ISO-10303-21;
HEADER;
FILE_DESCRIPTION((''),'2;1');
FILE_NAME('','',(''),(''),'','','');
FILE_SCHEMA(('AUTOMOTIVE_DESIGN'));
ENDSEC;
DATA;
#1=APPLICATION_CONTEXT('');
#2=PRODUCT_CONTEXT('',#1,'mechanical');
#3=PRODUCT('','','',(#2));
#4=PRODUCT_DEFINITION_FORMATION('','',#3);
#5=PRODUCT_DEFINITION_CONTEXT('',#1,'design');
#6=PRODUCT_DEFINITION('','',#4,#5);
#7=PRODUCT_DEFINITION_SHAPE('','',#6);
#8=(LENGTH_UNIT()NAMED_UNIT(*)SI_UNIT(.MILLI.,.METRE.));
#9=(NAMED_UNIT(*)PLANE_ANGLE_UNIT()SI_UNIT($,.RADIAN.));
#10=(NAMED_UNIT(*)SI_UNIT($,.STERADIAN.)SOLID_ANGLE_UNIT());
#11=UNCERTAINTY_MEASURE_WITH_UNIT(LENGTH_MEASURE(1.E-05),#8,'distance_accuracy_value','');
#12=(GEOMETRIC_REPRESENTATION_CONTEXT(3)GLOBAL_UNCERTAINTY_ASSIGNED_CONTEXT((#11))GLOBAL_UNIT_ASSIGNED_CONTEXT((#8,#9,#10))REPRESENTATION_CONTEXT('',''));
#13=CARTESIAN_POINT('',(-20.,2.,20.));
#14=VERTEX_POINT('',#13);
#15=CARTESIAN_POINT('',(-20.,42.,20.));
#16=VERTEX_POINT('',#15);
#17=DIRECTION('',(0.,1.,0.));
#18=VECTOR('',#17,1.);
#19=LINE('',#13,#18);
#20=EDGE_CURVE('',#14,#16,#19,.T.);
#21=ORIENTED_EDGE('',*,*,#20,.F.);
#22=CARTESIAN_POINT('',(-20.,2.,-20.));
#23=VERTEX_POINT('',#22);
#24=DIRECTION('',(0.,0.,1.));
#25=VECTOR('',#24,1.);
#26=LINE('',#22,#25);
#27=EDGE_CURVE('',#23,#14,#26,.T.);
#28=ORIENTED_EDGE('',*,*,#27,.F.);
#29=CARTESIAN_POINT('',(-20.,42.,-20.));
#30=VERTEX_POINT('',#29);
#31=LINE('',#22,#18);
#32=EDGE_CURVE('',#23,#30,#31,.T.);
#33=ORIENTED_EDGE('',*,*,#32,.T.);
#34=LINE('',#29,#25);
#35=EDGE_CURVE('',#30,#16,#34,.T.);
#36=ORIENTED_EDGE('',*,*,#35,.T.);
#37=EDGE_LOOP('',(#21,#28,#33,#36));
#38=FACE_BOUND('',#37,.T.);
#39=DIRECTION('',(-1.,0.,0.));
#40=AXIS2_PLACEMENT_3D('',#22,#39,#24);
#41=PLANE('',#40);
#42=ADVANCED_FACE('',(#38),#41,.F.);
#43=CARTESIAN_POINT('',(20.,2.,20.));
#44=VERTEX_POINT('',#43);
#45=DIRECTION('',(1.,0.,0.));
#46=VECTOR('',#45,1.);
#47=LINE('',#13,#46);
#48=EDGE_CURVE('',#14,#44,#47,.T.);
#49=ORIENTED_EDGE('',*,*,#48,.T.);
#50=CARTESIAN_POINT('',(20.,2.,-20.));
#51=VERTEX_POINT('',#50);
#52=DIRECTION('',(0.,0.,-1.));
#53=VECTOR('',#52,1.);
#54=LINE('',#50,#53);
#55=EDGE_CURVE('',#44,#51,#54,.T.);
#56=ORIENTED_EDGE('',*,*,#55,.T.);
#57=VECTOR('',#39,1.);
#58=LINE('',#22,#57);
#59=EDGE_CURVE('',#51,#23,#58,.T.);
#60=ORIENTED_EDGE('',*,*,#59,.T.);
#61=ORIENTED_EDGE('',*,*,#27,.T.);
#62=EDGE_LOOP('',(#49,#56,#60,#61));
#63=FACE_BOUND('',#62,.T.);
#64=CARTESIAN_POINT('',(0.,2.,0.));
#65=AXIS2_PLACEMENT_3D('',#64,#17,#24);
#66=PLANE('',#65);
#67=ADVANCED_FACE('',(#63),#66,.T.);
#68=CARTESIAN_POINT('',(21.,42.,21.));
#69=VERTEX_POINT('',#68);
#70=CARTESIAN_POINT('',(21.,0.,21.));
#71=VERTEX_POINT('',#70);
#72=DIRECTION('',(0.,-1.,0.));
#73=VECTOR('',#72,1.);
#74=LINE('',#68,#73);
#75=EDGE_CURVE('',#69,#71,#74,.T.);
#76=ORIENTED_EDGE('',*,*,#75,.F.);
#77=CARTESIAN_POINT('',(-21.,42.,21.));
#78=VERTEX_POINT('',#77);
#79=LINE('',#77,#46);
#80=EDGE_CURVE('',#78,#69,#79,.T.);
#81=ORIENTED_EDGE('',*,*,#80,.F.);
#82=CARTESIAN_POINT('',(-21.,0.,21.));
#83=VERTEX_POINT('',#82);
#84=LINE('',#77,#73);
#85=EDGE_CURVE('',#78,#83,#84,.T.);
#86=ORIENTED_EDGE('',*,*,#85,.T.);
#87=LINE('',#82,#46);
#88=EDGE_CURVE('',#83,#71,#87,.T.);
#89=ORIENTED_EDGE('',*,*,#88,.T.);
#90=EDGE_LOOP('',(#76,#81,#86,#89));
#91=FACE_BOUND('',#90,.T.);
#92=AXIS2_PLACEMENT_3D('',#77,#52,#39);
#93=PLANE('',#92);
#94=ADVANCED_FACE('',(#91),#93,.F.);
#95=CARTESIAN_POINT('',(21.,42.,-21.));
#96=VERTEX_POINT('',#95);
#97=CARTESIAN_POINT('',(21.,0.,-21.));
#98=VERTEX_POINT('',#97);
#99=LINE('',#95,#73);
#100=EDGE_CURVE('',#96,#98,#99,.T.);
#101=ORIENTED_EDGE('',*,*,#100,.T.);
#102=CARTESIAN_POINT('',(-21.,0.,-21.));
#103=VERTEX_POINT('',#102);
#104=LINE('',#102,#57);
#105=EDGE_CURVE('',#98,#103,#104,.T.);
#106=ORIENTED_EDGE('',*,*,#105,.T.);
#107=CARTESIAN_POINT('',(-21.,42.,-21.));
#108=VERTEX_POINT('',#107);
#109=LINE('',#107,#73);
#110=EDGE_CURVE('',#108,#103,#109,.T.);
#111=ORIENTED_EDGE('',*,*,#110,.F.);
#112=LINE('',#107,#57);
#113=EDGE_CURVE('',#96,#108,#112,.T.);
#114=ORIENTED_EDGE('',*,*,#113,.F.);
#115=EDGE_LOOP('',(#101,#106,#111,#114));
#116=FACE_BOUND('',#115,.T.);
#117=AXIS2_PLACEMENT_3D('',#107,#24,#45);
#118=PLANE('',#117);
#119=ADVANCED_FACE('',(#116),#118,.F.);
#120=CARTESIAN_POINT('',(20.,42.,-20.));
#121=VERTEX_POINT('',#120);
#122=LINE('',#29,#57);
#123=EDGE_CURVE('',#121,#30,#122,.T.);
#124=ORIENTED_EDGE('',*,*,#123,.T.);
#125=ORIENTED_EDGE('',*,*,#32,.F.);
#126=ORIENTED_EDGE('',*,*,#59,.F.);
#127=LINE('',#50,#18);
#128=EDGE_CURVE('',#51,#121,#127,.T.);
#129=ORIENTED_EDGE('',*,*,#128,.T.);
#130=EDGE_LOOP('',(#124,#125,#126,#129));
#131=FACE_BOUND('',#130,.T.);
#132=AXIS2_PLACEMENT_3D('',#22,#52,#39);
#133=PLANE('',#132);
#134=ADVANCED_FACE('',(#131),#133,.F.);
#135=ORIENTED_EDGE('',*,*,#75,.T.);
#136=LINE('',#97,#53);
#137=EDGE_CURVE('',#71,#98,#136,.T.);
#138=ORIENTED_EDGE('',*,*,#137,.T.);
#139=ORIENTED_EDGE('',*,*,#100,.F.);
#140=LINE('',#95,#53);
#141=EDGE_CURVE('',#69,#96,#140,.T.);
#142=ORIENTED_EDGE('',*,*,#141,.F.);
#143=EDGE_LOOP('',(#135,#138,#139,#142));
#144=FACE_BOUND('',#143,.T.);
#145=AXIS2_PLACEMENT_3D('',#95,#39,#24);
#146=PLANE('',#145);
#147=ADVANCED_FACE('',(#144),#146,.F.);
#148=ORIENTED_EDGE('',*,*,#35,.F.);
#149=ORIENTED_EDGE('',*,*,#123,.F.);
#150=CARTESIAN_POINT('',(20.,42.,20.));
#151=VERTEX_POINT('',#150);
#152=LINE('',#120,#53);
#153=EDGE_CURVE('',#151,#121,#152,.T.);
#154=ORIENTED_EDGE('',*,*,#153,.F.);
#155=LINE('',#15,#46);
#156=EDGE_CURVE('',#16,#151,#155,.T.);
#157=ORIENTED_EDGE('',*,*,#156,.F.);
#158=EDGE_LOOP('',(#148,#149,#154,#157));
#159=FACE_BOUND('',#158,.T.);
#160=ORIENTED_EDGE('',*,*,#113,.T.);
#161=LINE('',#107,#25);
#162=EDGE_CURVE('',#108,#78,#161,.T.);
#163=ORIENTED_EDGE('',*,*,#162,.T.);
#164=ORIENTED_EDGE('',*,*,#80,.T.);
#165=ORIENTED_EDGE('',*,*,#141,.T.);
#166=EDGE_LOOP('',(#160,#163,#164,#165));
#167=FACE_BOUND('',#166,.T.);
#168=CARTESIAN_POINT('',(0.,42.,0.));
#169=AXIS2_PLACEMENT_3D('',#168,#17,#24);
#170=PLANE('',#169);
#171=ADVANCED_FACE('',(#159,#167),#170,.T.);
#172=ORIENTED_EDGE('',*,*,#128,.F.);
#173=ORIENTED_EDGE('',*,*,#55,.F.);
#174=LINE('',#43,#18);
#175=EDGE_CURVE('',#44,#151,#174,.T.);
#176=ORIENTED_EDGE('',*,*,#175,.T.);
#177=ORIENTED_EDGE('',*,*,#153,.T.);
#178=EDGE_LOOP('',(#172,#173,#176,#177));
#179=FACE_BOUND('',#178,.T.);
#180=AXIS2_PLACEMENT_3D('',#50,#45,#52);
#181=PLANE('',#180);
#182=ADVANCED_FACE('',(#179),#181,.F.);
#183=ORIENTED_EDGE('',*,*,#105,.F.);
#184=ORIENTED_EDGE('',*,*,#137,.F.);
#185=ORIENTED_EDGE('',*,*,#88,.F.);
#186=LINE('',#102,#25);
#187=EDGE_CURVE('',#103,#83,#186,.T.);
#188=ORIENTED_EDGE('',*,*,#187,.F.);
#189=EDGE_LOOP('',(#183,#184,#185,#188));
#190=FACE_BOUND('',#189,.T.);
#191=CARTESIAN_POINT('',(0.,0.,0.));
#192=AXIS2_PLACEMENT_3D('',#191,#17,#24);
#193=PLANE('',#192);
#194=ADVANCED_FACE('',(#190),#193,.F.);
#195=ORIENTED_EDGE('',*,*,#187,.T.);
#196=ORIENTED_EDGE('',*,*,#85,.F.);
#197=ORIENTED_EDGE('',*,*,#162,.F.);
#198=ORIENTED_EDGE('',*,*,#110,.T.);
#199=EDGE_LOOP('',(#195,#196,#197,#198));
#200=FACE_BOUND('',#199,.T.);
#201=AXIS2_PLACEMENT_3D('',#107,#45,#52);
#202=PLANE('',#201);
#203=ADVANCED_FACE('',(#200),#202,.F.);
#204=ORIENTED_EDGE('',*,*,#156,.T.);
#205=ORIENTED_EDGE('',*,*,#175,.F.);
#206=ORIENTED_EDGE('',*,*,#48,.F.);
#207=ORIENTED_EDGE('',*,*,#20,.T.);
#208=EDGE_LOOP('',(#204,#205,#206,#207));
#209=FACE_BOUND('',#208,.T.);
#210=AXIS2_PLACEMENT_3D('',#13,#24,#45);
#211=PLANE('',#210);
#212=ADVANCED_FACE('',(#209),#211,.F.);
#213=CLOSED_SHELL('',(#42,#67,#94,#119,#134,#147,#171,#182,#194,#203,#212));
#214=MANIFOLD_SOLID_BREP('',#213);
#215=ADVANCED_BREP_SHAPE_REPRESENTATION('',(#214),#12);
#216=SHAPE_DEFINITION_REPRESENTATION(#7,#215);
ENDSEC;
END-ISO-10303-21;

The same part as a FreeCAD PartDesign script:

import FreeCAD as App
import Part
import Sketcher
from FreeCAD import Vector
Q = App.Units.Quantity

doc = App.newDocument("Part")
body = doc.addObject("PartDesign::Body", "Body")

# Sketch on XZ plane
sketch1 = doc.addObject("Sketcher::SketchObject", "Sketch")
body.addObject(sketch1)
sketch1.AttachmentSupport = (doc.XZ_Plane, [""])
sketch1.MapMode = "FlatFace"
sketch1.addGeometry(Part.LineSegment(Vector(-21, -21, 0), Vector(-21, 21, 0)), False)
sketch1.addGeometry(Part.LineSegment(Vector(-21, 21, 0), Vector(21, 21, 0)), False)
sketch1.addGeometry(Part.LineSegment(Vector(21, 21, 0), Vector(21, -21, 0)), False)
sketch1.addGeometry(Part.LineSegment(Vector(21, -21, 0), Vector(-21, -21, 0)), False)
sketch1.addConstraint(Sketcher.Constraint("Coincident", 0, 2, 1, 1))
sketch1.addConstraint(Sketcher.Constraint("Coincident", 1, 2, 2, 1))
sketch1.addConstraint(Sketcher.Constraint("Coincident", 2, 2, 3, 1))
sketch1.addConstraint(Sketcher.Constraint("Coincident", 3, 2, 0, 1))
sketch1.addConstraint(Sketcher.Constraint("Vertical", 0))
sketch1.addConstraint(Sketcher.Constraint("Horizontal", 1))
sketch1.addConstraint(Sketcher.Constraint("Vertical", 2))
sketch1.addConstraint(Sketcher.Constraint("Horizontal", 3))
sketch1.addConstraint(Sketcher.Constraint("Symmetric", 0, 2, 2, 2, -1, 1))
sketch1.addConstraint(Sketcher.Constraint("Equal", 3, 0))
sketch1.addConstraint(Sketcher.Constraint("DistanceX", 1, 1, 1, 2, Q("42 mm")))
pad1 = doc.addObject("PartDesign::Pad", "Pad")
body.addObject(pad1)
pad1.Profile = sketch1
pad1.Length = 42
pad1.Reversed = True

# Sketch on XZ plane
sketch2 = doc.addObject("Sketcher::SketchObject", "Sketch001")
body.addObject(sketch2)
sketch2.AttachmentSupport = (doc.XZ_Plane, [""])
sketch2.MapMode = "FlatFace"
sketch2.AttachmentOffset = App.Placement(Vector(0, 0, -42), App.Rotation())
sketch2.addGeometry(Part.LineSegment(Vector(-20, -20, 0), Vector(-20, 20, 0)), False)
sketch2.addGeometry(Part.LineSegment(Vector(-20, 20, 0), Vector(20, 20, 0)), False)
sketch2.addGeometry(Part.LineSegment(Vector(20, 20, 0), Vector(20, -20, 0)), False)
sketch2.addGeometry(Part.LineSegment(Vector(20, -20, 0), Vector(-20, -20, 0)), False)
sketch2.addConstraint(Sketcher.Constraint("Coincident", 0, 2, 1, 1))
sketch2.addConstraint(Sketcher.Constraint("Coincident", 1, 2, 2, 1))
sketch2.addConstraint(Sketcher.Constraint("Coincident", 2, 2, 3, 1))
sketch2.addConstraint(Sketcher.Constraint("Coincident", 3, 2, 0, 1))
sketch2.addConstraint(Sketcher.Constraint("Vertical", 0))
sketch2.addConstraint(Sketcher.Constraint("Horizontal", 1))
sketch2.addConstraint(Sketcher.Constraint("Vertical", 2))
sketch2.addConstraint(Sketcher.Constraint("Horizontal", 3))
sketch2.addConstraint(Sketcher.Constraint("Symmetric", 0, 2, 2, 2, -1, 1))
sketch2.addConstraint(Sketcher.Constraint("Equal", 3, 0))
sketch2.addConstraint(Sketcher.Constraint("DistanceX", 1, 1, 1, 2, Q("40 mm")))
pocket1 = doc.addObject("PartDesign::Pocket", "Pocket")
body.addObject(pocket1)
pocket1.Profile = sketch2
pocket1.Length = 40
pocket1.Reversed = True

doc.recompute()
